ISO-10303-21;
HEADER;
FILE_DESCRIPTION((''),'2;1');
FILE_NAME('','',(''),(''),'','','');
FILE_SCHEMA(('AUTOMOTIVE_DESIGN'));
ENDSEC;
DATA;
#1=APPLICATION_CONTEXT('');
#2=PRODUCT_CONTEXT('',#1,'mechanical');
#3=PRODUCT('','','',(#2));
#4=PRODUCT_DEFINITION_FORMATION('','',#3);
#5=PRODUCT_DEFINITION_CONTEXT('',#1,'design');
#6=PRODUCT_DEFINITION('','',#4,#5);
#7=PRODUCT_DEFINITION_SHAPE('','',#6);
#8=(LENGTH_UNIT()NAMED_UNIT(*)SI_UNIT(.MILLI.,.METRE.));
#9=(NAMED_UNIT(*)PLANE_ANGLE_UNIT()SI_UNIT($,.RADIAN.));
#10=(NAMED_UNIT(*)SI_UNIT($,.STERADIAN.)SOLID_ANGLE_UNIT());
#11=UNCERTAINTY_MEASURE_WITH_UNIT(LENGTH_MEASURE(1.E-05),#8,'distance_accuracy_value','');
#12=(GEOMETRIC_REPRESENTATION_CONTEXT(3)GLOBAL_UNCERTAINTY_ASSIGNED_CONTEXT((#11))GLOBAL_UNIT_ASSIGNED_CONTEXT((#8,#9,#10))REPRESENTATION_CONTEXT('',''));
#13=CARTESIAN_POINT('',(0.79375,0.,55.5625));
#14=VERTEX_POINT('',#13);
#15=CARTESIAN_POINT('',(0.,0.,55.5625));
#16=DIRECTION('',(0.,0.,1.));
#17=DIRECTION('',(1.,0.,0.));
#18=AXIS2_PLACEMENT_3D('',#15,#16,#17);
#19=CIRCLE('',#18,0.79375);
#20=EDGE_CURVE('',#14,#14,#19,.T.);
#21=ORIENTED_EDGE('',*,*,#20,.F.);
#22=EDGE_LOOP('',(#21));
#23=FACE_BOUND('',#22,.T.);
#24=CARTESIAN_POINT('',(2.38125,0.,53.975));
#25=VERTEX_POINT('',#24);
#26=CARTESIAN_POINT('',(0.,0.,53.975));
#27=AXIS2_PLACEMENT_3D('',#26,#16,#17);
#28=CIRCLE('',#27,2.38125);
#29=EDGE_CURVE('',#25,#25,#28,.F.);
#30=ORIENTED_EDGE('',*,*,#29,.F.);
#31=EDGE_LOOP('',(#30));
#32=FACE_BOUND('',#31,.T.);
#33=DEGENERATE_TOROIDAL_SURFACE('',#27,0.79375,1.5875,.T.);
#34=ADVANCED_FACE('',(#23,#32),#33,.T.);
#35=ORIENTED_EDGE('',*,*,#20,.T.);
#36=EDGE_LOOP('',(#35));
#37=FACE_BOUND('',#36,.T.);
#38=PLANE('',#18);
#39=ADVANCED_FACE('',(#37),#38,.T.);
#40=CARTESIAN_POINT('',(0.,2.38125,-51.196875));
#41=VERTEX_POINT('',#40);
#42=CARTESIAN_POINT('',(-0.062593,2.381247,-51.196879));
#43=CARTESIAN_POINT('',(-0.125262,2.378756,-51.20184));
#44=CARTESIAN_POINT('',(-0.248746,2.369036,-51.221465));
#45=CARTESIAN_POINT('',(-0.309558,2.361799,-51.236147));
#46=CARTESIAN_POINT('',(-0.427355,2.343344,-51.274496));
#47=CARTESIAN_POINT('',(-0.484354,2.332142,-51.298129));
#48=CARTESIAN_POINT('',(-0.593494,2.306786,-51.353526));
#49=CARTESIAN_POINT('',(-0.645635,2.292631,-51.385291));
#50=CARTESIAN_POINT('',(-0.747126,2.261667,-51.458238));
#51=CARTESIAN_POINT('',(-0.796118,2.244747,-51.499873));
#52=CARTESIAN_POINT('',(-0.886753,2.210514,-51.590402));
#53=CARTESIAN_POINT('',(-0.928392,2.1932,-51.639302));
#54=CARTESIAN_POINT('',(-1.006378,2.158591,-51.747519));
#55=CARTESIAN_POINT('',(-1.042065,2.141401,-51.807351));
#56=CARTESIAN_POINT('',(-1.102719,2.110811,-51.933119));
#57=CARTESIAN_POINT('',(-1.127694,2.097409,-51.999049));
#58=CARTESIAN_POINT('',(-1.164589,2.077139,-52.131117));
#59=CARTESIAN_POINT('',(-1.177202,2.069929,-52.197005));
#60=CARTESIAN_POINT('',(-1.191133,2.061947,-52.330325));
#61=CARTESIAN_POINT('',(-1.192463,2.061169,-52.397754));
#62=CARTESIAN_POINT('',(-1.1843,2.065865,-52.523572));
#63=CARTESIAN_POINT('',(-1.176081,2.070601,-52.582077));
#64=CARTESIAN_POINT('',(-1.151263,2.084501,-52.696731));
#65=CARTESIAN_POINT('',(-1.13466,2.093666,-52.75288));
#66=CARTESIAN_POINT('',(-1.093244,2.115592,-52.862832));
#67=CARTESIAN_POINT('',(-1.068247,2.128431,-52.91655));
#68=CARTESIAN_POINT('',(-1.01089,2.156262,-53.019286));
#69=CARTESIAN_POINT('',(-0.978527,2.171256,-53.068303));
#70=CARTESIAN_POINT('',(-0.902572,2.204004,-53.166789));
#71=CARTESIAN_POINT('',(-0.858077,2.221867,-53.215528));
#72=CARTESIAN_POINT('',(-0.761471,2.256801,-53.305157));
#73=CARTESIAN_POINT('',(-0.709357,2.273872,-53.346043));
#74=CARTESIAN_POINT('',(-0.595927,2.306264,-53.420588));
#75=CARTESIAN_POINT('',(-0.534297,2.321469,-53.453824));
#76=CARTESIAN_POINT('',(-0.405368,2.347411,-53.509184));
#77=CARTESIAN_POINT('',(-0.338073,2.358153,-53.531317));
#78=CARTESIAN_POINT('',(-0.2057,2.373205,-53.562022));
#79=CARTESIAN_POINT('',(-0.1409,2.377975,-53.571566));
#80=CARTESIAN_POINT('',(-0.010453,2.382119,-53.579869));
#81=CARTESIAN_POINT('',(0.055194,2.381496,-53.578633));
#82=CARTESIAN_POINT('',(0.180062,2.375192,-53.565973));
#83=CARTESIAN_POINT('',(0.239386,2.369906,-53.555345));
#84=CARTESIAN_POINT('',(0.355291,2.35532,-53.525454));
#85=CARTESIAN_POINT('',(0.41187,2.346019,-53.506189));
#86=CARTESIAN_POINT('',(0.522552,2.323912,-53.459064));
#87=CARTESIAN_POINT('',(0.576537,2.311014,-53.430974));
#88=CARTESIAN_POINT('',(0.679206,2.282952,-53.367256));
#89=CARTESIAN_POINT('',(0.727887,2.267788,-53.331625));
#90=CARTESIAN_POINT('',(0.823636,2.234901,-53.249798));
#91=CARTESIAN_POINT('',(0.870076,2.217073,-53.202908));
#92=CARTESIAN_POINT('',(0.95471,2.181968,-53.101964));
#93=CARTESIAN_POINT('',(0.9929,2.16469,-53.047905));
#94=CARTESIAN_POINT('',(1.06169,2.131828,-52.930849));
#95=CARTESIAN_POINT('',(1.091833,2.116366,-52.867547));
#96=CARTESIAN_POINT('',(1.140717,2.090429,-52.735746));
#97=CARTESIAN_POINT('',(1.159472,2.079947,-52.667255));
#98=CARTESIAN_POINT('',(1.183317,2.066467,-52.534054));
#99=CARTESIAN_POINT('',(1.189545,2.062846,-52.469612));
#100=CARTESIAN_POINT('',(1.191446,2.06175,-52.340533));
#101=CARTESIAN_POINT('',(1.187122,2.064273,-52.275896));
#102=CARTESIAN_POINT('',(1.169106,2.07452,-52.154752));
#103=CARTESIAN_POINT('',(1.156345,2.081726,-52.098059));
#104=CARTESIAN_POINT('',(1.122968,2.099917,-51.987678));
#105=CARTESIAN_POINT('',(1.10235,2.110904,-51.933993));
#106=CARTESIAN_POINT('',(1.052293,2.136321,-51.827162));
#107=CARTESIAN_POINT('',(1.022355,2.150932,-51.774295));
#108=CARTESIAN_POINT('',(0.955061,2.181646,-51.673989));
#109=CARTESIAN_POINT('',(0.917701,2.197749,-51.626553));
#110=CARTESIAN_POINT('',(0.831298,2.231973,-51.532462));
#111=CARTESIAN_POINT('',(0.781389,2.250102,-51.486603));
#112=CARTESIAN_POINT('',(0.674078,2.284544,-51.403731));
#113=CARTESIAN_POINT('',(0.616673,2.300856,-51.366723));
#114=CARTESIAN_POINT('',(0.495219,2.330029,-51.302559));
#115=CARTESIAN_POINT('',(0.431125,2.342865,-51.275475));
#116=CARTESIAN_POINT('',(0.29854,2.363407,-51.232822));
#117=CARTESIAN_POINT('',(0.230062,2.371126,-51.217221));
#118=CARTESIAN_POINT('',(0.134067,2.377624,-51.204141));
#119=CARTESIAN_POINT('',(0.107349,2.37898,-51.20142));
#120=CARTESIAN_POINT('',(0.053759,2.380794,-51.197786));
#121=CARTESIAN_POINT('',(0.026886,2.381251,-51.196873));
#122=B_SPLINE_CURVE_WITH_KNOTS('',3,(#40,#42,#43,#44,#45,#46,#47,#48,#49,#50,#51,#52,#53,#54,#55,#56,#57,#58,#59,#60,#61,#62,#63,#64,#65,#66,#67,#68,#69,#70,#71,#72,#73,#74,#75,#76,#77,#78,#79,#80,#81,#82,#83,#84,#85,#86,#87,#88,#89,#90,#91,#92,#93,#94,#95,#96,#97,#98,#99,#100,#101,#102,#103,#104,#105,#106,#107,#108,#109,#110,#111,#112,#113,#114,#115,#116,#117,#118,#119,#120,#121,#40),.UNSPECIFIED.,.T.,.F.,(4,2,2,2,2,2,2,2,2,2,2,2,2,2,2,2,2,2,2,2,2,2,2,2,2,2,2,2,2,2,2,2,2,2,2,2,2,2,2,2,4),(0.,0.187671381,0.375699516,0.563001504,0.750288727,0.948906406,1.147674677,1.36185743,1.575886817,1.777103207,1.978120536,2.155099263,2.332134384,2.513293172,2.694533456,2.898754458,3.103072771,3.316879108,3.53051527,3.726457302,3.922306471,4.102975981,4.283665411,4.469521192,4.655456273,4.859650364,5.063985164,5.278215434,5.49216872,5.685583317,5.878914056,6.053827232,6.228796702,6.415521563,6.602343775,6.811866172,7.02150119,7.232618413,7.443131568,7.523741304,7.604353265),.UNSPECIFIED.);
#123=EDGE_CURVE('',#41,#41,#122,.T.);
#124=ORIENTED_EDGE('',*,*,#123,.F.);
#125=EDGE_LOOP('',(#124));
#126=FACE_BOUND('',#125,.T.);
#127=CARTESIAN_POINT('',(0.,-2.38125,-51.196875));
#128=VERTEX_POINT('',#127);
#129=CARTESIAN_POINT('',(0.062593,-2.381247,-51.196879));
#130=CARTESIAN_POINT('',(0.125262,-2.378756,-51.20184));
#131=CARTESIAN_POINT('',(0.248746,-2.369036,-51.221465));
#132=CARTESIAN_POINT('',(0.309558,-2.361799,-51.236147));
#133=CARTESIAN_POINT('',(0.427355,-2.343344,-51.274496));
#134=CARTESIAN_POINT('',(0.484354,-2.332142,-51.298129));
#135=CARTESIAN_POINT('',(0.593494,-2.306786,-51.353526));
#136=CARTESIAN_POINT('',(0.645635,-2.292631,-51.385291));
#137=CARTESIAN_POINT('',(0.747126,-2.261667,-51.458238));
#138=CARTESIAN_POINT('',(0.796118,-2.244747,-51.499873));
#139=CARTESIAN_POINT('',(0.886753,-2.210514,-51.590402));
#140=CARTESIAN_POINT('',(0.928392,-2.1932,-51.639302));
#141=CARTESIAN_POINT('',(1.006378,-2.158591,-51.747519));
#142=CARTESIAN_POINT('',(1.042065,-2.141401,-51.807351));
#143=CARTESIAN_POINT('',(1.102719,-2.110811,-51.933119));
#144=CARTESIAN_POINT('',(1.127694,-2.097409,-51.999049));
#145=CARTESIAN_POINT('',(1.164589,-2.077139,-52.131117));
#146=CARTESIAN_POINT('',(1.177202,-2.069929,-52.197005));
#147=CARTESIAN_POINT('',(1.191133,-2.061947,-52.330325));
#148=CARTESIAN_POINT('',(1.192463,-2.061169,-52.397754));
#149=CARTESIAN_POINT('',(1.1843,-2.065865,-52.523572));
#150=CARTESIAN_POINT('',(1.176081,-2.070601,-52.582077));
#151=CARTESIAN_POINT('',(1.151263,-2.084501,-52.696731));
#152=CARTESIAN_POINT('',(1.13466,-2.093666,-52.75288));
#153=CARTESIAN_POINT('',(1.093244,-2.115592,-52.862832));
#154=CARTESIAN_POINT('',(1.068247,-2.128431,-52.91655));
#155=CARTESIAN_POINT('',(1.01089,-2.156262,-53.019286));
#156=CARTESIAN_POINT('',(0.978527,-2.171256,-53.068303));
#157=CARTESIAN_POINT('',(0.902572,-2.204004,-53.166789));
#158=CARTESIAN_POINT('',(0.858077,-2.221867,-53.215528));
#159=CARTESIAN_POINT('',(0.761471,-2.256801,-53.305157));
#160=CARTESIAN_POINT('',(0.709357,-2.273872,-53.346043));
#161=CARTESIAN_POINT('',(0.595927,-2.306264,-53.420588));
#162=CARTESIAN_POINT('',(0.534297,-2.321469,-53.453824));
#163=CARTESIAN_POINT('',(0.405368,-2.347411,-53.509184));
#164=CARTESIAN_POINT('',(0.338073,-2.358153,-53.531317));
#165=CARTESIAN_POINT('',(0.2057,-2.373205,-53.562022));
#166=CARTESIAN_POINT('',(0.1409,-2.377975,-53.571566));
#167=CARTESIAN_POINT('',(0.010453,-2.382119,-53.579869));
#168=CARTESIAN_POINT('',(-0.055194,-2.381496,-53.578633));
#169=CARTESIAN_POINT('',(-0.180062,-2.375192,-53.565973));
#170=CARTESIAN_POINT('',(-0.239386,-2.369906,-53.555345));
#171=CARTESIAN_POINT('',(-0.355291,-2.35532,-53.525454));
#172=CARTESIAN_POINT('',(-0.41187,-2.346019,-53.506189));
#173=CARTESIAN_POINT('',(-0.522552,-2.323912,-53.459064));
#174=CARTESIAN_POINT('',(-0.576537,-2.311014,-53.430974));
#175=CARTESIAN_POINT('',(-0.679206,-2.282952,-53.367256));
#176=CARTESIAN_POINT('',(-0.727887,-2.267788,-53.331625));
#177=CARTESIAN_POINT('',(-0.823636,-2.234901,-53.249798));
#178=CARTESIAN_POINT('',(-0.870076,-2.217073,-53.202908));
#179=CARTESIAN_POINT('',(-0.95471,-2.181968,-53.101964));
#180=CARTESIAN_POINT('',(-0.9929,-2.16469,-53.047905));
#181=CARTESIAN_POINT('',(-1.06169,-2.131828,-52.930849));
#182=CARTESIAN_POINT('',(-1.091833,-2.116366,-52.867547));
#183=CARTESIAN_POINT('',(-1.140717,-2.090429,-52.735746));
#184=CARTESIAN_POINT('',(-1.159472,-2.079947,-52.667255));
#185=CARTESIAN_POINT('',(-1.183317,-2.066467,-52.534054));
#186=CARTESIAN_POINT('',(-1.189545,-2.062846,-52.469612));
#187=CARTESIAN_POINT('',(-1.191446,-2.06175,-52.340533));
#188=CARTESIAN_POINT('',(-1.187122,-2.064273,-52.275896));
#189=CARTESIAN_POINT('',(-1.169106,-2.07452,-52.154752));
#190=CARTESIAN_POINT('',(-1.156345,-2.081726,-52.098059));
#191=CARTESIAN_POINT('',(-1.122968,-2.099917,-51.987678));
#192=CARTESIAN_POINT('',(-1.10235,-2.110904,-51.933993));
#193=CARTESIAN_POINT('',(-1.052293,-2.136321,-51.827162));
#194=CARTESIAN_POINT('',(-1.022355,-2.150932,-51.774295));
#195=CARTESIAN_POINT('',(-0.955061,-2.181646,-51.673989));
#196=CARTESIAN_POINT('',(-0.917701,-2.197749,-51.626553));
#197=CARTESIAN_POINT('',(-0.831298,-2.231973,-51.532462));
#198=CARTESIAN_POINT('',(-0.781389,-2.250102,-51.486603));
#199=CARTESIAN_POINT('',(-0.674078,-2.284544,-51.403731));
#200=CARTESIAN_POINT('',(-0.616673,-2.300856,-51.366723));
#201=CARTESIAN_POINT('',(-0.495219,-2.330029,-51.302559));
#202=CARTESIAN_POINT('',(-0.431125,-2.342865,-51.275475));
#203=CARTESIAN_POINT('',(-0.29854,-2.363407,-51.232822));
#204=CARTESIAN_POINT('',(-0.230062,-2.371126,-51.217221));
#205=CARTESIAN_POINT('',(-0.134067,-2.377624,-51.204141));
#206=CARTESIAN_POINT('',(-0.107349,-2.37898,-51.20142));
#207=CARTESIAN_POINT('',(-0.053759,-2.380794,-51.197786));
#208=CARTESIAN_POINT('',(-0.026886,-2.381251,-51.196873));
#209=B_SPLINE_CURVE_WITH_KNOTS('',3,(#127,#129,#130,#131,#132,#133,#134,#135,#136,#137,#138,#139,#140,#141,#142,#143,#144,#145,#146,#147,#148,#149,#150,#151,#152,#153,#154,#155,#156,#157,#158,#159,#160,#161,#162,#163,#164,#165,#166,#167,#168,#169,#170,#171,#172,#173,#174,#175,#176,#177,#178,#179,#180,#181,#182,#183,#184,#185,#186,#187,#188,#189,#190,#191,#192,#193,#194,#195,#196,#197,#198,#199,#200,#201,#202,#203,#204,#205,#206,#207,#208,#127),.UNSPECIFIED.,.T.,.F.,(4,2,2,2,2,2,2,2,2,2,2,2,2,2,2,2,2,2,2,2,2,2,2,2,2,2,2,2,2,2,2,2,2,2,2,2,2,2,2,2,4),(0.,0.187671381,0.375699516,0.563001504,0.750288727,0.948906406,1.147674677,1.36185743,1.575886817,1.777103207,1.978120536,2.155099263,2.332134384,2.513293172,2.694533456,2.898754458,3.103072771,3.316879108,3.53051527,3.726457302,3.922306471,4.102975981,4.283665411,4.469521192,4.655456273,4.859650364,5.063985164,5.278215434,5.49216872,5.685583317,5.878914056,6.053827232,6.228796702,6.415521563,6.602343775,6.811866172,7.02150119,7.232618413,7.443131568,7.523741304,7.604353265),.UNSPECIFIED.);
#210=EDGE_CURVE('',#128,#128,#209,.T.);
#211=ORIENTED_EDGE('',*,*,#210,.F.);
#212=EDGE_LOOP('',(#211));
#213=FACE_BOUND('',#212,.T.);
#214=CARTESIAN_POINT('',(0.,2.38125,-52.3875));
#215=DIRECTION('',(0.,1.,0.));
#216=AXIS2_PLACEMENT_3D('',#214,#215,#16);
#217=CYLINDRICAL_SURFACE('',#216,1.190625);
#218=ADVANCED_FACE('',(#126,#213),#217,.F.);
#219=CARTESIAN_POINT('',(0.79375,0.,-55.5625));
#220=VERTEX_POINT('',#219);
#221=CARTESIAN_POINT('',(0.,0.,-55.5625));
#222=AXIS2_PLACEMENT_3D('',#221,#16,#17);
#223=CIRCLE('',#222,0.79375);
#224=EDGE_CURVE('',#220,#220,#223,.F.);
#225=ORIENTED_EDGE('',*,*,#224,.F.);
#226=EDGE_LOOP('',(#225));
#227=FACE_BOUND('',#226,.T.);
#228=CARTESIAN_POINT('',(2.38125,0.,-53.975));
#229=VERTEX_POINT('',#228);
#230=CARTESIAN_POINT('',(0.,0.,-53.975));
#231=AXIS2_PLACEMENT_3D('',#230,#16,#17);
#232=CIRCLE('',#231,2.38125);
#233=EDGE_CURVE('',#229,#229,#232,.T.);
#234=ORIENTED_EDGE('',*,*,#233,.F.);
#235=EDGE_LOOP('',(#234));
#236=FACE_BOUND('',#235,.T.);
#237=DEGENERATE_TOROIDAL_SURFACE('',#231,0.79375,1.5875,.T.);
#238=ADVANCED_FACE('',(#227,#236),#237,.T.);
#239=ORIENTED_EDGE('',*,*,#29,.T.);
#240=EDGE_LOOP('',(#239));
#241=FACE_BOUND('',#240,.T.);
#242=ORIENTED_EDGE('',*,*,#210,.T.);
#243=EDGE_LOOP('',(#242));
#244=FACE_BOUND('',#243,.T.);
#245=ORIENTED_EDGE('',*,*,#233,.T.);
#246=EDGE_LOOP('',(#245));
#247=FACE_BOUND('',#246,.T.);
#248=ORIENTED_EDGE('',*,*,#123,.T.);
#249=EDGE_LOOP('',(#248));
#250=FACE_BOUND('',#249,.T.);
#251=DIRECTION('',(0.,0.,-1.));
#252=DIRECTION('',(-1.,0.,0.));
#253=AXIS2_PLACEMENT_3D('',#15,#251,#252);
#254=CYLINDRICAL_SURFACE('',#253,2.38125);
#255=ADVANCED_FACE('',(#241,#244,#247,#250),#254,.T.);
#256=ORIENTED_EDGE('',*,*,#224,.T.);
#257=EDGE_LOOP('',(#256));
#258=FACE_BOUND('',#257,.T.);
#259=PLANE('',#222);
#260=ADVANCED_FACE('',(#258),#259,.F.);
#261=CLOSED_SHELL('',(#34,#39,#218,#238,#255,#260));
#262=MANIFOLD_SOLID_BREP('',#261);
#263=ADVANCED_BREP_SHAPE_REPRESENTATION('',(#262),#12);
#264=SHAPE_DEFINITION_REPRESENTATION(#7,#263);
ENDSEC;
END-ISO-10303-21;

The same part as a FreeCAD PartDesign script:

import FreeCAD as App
import Part
import Sketcher

V = App.Vector
Q = App.Units.Quantity


def edges_at(feature, points):
    """Names of the edges that pass closest to the given points."""
    edges = feature.Shape.Edges
    near = lambda p: min(range(len(edges)), key=lambda i: edges[i].distToShape(Part.Vertex(*p))[0])
    return sorted({f"Edge{near(p) + 1}" for p in points})

doc = App.newDocument("Part")
params = doc.addObject("Spreadsheet::Sheet", "Params")
for row, (alias, value) in enumerate([
    ("sketch1_diameter", "0.1875 in"),
    ("pad1_length", "4.375 in"),
    ("fillet_radius", "0.0625 in"),
    ("sketch2_diameter", "0.09375 in"),
    ("hole_diameter", "0.09375 in"),
    ("fillet2_radius", "0.0625 in"),
], start=1):
    params.set(f"A{row}", alias)
    params.set(f"B{row}", "=" + value)
    params.setAlias(f"B{row}", alias)

body = doc.addObject("PartDesign::Body", "Body")

sketch1 = body.newObject("Sketcher::SketchObject", "Sketch")
sketch1.AttachmentSupport = (doc.getObject("XY_Plane"), [""])
sketch1.MapMode = "FlatFace"
sketch1.addGeometry(Part.Circle(V(0, 0, 0), V(0, 0, 1), 2.4), False)
sketch1.addConstraint([
    Sketcher.Constraint("Coincident", 0, 3, -1, 1),
    Sketcher.Constraint("Diameter", 0, Q("0.1875 in")),
])
sketch1.setExpression("Constraints[1]", "Params.sketch1_diameter")
pad1 = body.newObject("PartDesign::Pad", "Pad")
pad1.Profile = sketch1
pad1.setExpression("Length", "Params.pad1_length")
pad1.Midplane = True
doc.recompute()

fillet = body.newObject("PartDesign::Fillet", "Fillet")
fillet.Base = (pad1, edges_at(pad1, [(-2.381, 0, 55.562)]))
fillet.setExpression("Radius", "Params.fillet_radius")

sketch2 = body.newObject("Sketcher::SketchObject", "Sketch001")
sketch2.AttachmentSupport = (doc.getObject("XZ_Plane"), [""])
sketch2.MapMode = "FlatFace"
sketch2.AttachmentOffset = App.Placement(V(0, 0, -0.09375 * 25.4), App.Rotation())
sketch2.addGeometry(Part.Circle(V(0, -52.4, 0), V(0, 0, 1), 1.2), False)
sketch2.addConstraint([
    Sketcher.Constraint("PointOnObject", 0, 3, -2),
    Sketcher.Constraint("Diameter", 0, Q("0.09375 in")),
    Sketcher.Constraint("DistanceY", 0, 3, -1, 1, Q("2.0625 in")),
])
sketch2.setExpression("Constraints[1]", "Params.sketch2_diameter")
doc.recompute()
hole = body.newObject("PartDesign::Hole", "Hole")
hole.Profile = sketch2
hole.ThreadType = "None"
hole.setExpression("Diameter", "Params.hole_diameter")
hole.DepthType = "ThroughAll"
hole.Reversed = True
doc.recompute()

fillet2 = body.newObject("PartDesign::Fillet", "Fillet001")
fillet2.Base = (hole, edges_at(hole, [(-2.381, 0, -55.562)]))
fillet2.setExpression("Radius", "Params.fillet2_radius")

doc.recompute()
